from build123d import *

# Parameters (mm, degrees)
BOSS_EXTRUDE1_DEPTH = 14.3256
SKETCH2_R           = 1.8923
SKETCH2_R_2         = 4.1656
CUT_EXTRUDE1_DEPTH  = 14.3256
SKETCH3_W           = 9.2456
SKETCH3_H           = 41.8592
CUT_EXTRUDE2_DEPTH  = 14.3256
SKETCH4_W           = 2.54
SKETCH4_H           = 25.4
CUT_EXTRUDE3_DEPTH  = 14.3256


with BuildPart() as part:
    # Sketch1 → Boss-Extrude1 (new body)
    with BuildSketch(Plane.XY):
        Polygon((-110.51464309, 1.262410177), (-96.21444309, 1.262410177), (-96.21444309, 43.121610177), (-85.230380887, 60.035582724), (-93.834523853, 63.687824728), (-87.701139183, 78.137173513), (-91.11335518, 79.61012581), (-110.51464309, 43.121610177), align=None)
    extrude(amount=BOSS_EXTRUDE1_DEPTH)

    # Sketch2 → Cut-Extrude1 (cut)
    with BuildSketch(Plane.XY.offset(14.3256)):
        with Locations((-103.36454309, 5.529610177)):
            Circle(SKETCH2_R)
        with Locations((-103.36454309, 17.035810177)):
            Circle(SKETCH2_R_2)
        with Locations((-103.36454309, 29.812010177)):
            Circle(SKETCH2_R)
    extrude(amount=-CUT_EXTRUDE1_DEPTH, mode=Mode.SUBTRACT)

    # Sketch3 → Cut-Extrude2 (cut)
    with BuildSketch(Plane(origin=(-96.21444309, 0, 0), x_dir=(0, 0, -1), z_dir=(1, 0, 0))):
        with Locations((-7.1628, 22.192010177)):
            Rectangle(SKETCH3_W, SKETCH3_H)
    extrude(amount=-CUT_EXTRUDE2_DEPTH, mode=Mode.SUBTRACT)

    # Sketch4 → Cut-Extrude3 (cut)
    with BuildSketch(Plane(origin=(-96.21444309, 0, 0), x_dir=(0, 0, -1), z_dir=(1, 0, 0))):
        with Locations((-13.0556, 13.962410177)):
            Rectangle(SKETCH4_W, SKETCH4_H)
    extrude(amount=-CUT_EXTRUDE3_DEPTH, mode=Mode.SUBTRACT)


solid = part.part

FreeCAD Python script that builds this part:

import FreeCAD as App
import Part
import Sketcher
from FreeCAD import Vector
Q = App.Units.Quantity

doc = App.newDocument("Part")
body = doc.addObject("PartDesign::Body", "Body")

sketch1 = doc.addObject("Sketcher::SketchObject", "Sketch")
body.addObject(sketch1)
sketch1.AttachmentSupport = (doc.XY_Plane, [""])
sketch1.MapMode = "FlatFace"
sketch1.addGeometry([
    Part.LineSegment(Vector(-110.514643, 1.26241, 0), Vector(-96.214443, 1.26241, 0)),
    Part.LineSegment(Vector(-96.214443, 1.26241, 0), Vector(-96.214443, 43.12161, 0)),
    Part.LineSegment(Vector(-96.214443, 43.12161, 0), Vector(-85.230381, 60.035583, 0)),
    Part.LineSegment(Vector(-85.230381, 60.035583, 0), Vector(-93.834524, 63.687825, 0)),
    Part.LineSegment(Vector(-93.834524, 63.687825, 0), Vector(-87.701139, 78.137174, 0)),
    Part.LineSegment(Vector(-87.701139, 78.137174, 0), Vector(-91.113355, 79.610126, 0)),
    Part.LineSegment(Vector(-91.113355, 79.610126, 0), Vector(-110.514643, 43.12161, 0)),
    Part.LineSegment(Vector(-110.514643, 43.12161, 0), Vector(-110.514643, 1.26241, 0)),
], False)
sketch1.addConstraint([
    Sketcher.Constraint("Coincident", 0, 2, 1, 1),
    Sketcher.Constraint("Coincident", 1, 2, 2, 1),
    Sketcher.Constraint("Coincident", 2, 2, 3, 1),
    Sketcher.Constraint("Coincident", 3, 2, 4, 1),
    Sketcher.Constraint("Coincident", 4, 2, 5, 1),
    Sketcher.Constraint("Coincident", 5, 2, 6, 1),
    Sketcher.Constraint("Coincident", 6, 2, 7, 1),
    Sketcher.Constraint("Coincident", 7, 2, 0, 1),
    Sketcher.Constraint("Horizontal", 0),
    Sketcher.Constraint("Vertical", 1),
    Sketcher.Constraint("Vertical", 7),
    Sketcher.Constraint("Perpendicular", 3, 4),
    Sketcher.Constraint("Horizontal", 1, 2, 6, 2),
    Sketcher.Constraint("Angle", 2, Q("57 deg")),
    Sketcher.Constraint("Angle", 3, Q("157 deg")),
    Sketcher.Constraint("Angle", 6, Q("-118 deg")),
    Sketcher.Constraint("DistanceX", 0, 1, 0, 2, Q("0.563 in")),
    Sketcher.Constraint("DistanceY", 1, 1, 1, 2, Q("1.648 in")),
    Sketcher.Constraint("Distance", 2, Q("0.794 in")),
    Sketcher.Constraint("Distance", 3, Q("0.368 in")),
    Sketcher.Constraint("Distance", 4, Q("0.618 in")),
    Sketcher.Constraint("Distance", 6, Q("1.627 in")),
    Sketcher.Constraint("DistanceY", -1, 1, 0, 2, 1.26241),
    Sketcher.Constraint("DistanceX", 2, 2, -1, 1, 85.230381),
])
pad1 = doc.addObject("PartDesign::Pad", "Pad")
body.addObject(pad1)
pad1.Profile = sketch1
pad1.Length = Q("0.564 in")

sketch2 = doc.addObject("Sketcher::SketchObject", "Sketch001")
body.addObject(sketch2)
sketch2.AttachmentSupport = (doc.XY_Plane, [""])
sketch2.MapMode = "FlatFace"
sketch2.AttachmentOffset = App.Placement(Vector(0, 0, 0.564 * 25.4), App.Rotation())
sketch2.addGeometry([
    Part.Circle(Vector(-103.364543, 5.52961, 0), Vector(0, 0, 1), 1.8923),
    Part.Circle(Vector(-103.364543, 17.03581, 0), Vector(0, 0, 1), 4.1656),
    Part.Circle(Vector(-103.364543, 29.81201, 0), Vector(0, 0, 1), 1.8923),
], False)
sketch2.addConstraint([
    Sketcher.Constraint("Equal", 0, 2),
    Sketcher.Constraint("Vertical", 0, 3, 1, 3),
    Sketcher.Constraint("Vertical", 1, 3, 2, 3),
    Sketcher.Constraint("Diameter", 0, Q("0.149 in")),
    Sketcher.Constraint("Diameter", 1, Q("0.328 in")),
    Sketcher.Constraint("DistanceY", 0, 3, 1, 3, Q("0.453 in")),
    Sketcher.Constraint("DistanceY", 1, 3, 2, 3, Q("0.503 in")),
    Sketcher.Constraint("DistanceY", -1, 1, 0, 3, 5.52961),
    Sketcher.Constraint("DistanceX", 0, 3, -1, 1, 103.364543),
])
pocket1 = doc.addObject("PartDesign::Pocket", "Pocket")
body.addObject(pocket1)
pocket1.Profile = sketch2
pocket1.Length = Q("0.564 in")

sketch3 = doc.addObject("Sketcher::SketchObject", "Sketch002")
body.addObject(sketch3)
sketch3.AttachmentSupport = (doc.YZ_Plane, [""])
sketch3.MapMode = "FlatFace"
sketch3.AttachmentOffset = App.Placement(Vector(0, 0, -96.214443), App.Rotation())
sketch3.addGeometry([
    Part.LineSegment(Vector(43.12161, 11.7856, 0), Vector(1.26241, 11.7856, 0)),
    Part.LineSegment(Vector(1.26241, 11.7856, 0), Vector(1.26241, 2.54, 0)),
    Part.LineSegment(Vector(1.26241, 2.54, 0), Vector(43.12161, 2.54, 0)),
    Part.LineSegment(Vector(43.12161, 2.54, 0), Vector(43.12161, 11.7856, 0)),
], False)
sketch3.addConstraint([
    Sketcher.Constraint("Coincident", 0, 2, 1, 1),
    Sketcher.Constraint("Coincident", 1, 2, 2, 1),
    Sketcher.Constraint("Coincident", 2, 2, 3, 1),
    Sketcher.Constraint("Coincident", 3, 2, 0, 1),
    Sketcher.Constraint("Horizontal", 0),
    Sketcher.Constraint("Vertical", 1),
    Sketcher.Constraint("Horizontal", 2),
    Sketcher.Constraint("Vertical", 3),
    Sketcher.Constraint("DistanceY", -1, 1, 1, 2, Q("0.1 in")),
    Sketcher.Constraint("DistanceX", 0, 2, 0, 1, Q("1.648 in")),
    Sketcher.Constraint("DistanceY", 1, 2, 1, 1, Q("0.364 in")),
    Sketcher.Constraint("DistanceX", -1, 1, 0, 2, 1.26241),
])
pocket2 = doc.addObject("PartDesign::Pocket", "Pocket001")
body.addObject(pocket2)
pocket2.Profile = sketch3
pocket2.Length = Q("0.564 in")

sketch4 = doc.addObject("Sketcher::SketchObject", "Sketch003")
body.addObject(sketch4)
sketch4.AttachmentSupport = (doc.YZ_Plane, [""])
sketch4.MapMode = "FlatFace"
sketch4.AttachmentOffset = App.Placement(Vector(0, 0, -96.214443), App.Rotation())
sketch4.addGeometry([
    Part.LineSegment(Vector(26.66241, 14.3256, 0), Vector(1.26241, 14.3256, 0)),
    Part.LineSegment(Vector(1.26241, 14.3256, 0), Vector(1.26241, 11.7856, 0)),
    Part.LineSegment(Vector(1.26241, 11.7856, 0), Vector(26.66241, 11.7856, 0)),
    Part.LineSegment(Vector(26.66241, 11.7856, 0), Vector(26.66241, 14.3256, 0)),
], False)
sketch4.addConstraint([
    Sketcher.Constraint("Coincident", 0, 2, 1, 1),
    Sketcher.Constraint("Coincident", 1, 2, 2, 1),
    Sketcher.Constraint("Coincident", 2, 2, 3, 1),
    Sketcher.Constraint("Coincident", 3, 2, 0, 1),
    Sketcher.Constraint("Horizontal", 0),
    Sketcher.Constraint("Vertical", 1),
    Sketcher.Constraint("Horizontal", 2),
    Sketcher.Constraint("Vertical", 3),
    Sketcher.Constraint("DistanceX", 0, 2, 0, 1, Q("1 in")),
    Sketcher.Constraint("DistanceY", 1, 2, 1, 1, Q("0.1 in")),
    Sketcher.Constraint("DistanceY", -1, 1, 0, 2, Q("0.564 in")),
    Sketcher.Constraint("DistanceX", -1, 1, 0, 2, 1.26241),
])
pocket3 = doc.addObject("PartDesign::Pocket", "Pocket002")
body.addObject(pocket3)
pocket3.Profile = sketch4
pocket3.Length = Q("0.564 in")

doc.recompute()
